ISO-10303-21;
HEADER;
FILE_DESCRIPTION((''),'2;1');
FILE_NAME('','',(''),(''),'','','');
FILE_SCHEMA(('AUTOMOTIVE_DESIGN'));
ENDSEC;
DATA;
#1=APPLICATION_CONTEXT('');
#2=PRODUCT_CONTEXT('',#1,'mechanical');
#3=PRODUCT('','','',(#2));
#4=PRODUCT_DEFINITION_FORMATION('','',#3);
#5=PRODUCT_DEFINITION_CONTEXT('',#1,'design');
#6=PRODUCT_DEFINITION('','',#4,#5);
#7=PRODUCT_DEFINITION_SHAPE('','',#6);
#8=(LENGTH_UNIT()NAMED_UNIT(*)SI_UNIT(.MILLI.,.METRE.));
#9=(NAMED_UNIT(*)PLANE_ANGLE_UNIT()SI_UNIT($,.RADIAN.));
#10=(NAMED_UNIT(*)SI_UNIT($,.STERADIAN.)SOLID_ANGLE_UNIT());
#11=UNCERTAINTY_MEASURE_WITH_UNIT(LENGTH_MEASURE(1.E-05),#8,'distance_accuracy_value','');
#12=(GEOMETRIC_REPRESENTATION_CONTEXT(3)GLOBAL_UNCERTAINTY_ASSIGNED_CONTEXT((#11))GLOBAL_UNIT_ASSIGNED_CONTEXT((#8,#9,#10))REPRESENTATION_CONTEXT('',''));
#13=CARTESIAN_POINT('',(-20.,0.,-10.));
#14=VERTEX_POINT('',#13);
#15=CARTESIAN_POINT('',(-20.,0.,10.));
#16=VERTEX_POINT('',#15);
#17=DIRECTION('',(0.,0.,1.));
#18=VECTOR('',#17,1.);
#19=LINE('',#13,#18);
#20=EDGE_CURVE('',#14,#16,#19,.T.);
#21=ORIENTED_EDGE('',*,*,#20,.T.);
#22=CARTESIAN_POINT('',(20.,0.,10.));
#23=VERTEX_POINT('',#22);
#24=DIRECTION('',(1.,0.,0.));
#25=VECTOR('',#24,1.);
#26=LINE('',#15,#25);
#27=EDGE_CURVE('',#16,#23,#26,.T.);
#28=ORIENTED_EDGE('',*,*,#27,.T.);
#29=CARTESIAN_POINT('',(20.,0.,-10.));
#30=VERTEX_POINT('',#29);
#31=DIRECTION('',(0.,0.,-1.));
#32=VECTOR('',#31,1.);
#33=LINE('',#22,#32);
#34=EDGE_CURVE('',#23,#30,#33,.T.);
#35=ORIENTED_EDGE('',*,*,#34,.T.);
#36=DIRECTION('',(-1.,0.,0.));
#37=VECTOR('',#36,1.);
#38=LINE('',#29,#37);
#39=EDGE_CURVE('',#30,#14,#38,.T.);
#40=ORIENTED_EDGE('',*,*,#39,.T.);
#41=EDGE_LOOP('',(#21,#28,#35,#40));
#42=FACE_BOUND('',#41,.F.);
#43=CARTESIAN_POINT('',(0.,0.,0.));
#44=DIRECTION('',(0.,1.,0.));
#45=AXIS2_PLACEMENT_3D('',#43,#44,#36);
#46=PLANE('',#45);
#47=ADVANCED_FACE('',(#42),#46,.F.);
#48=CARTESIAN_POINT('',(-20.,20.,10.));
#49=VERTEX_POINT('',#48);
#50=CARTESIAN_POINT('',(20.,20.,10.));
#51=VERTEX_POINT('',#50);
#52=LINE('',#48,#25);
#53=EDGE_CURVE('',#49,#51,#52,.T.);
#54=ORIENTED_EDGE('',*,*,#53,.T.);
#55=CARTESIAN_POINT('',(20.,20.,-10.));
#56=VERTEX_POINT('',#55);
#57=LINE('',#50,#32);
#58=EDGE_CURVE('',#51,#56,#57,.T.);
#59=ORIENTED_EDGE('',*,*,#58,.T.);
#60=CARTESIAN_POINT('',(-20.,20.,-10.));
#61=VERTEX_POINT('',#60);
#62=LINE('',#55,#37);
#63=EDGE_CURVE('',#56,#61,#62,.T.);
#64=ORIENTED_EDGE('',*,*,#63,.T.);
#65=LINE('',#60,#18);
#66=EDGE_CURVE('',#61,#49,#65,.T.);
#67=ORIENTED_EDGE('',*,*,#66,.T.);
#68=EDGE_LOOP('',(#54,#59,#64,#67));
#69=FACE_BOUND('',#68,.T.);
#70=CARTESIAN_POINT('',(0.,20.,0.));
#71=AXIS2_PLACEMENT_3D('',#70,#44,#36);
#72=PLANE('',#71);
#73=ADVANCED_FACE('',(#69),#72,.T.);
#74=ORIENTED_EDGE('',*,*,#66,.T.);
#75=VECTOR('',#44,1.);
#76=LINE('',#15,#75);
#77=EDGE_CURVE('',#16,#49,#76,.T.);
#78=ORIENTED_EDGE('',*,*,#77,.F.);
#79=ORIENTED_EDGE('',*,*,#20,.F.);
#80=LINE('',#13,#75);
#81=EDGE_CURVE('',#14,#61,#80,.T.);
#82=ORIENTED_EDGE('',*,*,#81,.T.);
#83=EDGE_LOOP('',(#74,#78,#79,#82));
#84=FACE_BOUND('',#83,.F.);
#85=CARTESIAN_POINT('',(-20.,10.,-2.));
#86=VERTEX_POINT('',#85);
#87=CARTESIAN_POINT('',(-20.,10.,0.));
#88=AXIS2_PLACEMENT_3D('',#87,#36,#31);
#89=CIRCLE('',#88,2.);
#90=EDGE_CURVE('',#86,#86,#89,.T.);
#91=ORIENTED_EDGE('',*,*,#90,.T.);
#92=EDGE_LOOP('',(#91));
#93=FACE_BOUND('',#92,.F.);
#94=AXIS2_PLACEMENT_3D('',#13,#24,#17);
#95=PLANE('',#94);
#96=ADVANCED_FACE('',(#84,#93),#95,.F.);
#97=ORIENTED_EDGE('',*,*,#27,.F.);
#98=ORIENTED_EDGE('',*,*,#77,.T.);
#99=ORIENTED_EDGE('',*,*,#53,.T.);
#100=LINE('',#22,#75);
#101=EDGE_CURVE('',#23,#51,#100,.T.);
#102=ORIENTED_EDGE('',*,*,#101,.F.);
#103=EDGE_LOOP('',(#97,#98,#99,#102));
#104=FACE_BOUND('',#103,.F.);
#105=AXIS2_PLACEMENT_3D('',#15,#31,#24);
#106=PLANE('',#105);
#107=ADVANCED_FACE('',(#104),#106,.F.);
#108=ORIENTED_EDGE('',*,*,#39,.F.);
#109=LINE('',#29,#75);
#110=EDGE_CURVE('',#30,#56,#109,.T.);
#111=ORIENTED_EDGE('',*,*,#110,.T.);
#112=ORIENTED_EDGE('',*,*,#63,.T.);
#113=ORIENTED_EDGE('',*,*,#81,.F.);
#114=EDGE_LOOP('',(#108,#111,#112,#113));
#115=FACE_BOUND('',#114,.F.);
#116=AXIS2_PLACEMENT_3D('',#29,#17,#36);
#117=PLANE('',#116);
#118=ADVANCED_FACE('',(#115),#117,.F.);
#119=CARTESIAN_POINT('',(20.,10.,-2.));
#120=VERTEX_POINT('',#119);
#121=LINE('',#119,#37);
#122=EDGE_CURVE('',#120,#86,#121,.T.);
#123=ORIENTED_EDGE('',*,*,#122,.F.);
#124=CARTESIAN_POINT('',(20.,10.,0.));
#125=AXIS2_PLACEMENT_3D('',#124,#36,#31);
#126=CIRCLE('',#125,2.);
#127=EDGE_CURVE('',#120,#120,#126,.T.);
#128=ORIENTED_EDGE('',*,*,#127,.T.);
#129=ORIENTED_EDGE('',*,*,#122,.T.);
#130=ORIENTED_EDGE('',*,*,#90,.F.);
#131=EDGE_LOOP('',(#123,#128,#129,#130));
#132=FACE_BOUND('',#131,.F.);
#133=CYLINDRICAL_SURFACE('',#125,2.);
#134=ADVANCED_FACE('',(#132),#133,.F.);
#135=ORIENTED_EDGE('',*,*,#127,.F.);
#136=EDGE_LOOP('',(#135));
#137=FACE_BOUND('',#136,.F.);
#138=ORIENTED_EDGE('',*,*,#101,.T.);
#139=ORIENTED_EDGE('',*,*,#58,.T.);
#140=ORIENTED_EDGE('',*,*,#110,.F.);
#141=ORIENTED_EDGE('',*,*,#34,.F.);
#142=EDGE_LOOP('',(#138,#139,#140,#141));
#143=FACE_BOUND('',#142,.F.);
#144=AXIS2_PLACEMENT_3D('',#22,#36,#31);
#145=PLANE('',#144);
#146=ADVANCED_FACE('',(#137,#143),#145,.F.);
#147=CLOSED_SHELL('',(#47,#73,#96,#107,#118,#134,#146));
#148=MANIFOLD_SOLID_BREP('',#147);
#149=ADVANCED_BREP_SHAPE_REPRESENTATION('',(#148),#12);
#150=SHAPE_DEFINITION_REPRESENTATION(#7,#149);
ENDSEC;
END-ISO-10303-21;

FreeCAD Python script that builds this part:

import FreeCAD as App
import Part
import Sketcher
Q = App.Units.Quantity


def add_polygon(sketch, points):
    """Adds a closed chain of lines whose ends are joined by coincident constraints."""
    first, n = sketch.GeometryCount, len(points)
    for a, b in zip(points, points[1:] + points[:1]):
        sketch.addGeometry(Part.LineSegment(App.Vector(*a, 0), App.Vector(*b, 0)), False)
    for i in range(n):
        sketch.addConstraint(Sketcher.Constraint("Coincident", first + i, 2, first + (i + 1) % n, 1))

doc = App.newDocument("Part")
body = doc.addObject("PartDesign::Body", "Body")

# Sketch on XZ plane
sketch1 = body.newObject("Sketcher::SketchObject", "Sketch")
sketch1.AttachmentSupport = (doc.getObject("XZ_Plane"), [""])
sketch1.MapMode = "FlatFace"
add_polygon(sketch1, [(-20, -10), (-20, 10), (20, 10), (20, -10)])  # lines 0-3
sketch1.addConstraint([
    Sketcher.Constraint("Vertical", 0),
    Sketcher.Constraint("Horizontal", 1),
    Sketcher.Constraint("Vertical", 2),
    Sketcher.Constraint("Horizontal", 3),
    Sketcher.Constraint("Symmetric", 0, 2, 2, 2, -1, 1),
    Sketcher.Constraint("DistanceX", 1, 1, 1, 2, Q("40 mm")),
    Sketcher.Constraint("DistanceY", 0, 1, 0, 2, Q("20 mm")),
])
pad1 = body.newObject("PartDesign::Pad", "Pad")
pad1.Profile = sketch1
pad1.Length = 20
pad1.Reversed = True

# Sketch on YZ plane
sketch2 = body.newObject("Sketcher::SketchObject", "Sketch001")
sketch2.AttachmentSupport = (doc.getObject("YZ_Plane"), [""])
sketch2.MapMode = "FlatFace"
sketch2.AttachmentOffset = App.Placement(App.Vector(0, 0, 20), App.Rotation())
sketch2.addGeometry(Part.Circle(App.Vector(10, 0, 0), App.Vector(0, 0, 1), 2), False)
sketch2.addConstraint([
    Sketcher.Constraint("PointOnObject", 0, 3, -1),
    Sketcher.Constraint("Diameter", 0, Q("4 mm")),
    Sketcher.Constraint("DistanceX", -1, 1, 0, 3, Q("10 mm")),
])
doc.recompute()
hole = body.newObject("PartDesign::Hole", "Hole")
hole.Profile = sketch2
hole.ThreadType = "None"
hole.Diameter = 4
hole.DepthType = "ThroughAll"

doc.recompute()
